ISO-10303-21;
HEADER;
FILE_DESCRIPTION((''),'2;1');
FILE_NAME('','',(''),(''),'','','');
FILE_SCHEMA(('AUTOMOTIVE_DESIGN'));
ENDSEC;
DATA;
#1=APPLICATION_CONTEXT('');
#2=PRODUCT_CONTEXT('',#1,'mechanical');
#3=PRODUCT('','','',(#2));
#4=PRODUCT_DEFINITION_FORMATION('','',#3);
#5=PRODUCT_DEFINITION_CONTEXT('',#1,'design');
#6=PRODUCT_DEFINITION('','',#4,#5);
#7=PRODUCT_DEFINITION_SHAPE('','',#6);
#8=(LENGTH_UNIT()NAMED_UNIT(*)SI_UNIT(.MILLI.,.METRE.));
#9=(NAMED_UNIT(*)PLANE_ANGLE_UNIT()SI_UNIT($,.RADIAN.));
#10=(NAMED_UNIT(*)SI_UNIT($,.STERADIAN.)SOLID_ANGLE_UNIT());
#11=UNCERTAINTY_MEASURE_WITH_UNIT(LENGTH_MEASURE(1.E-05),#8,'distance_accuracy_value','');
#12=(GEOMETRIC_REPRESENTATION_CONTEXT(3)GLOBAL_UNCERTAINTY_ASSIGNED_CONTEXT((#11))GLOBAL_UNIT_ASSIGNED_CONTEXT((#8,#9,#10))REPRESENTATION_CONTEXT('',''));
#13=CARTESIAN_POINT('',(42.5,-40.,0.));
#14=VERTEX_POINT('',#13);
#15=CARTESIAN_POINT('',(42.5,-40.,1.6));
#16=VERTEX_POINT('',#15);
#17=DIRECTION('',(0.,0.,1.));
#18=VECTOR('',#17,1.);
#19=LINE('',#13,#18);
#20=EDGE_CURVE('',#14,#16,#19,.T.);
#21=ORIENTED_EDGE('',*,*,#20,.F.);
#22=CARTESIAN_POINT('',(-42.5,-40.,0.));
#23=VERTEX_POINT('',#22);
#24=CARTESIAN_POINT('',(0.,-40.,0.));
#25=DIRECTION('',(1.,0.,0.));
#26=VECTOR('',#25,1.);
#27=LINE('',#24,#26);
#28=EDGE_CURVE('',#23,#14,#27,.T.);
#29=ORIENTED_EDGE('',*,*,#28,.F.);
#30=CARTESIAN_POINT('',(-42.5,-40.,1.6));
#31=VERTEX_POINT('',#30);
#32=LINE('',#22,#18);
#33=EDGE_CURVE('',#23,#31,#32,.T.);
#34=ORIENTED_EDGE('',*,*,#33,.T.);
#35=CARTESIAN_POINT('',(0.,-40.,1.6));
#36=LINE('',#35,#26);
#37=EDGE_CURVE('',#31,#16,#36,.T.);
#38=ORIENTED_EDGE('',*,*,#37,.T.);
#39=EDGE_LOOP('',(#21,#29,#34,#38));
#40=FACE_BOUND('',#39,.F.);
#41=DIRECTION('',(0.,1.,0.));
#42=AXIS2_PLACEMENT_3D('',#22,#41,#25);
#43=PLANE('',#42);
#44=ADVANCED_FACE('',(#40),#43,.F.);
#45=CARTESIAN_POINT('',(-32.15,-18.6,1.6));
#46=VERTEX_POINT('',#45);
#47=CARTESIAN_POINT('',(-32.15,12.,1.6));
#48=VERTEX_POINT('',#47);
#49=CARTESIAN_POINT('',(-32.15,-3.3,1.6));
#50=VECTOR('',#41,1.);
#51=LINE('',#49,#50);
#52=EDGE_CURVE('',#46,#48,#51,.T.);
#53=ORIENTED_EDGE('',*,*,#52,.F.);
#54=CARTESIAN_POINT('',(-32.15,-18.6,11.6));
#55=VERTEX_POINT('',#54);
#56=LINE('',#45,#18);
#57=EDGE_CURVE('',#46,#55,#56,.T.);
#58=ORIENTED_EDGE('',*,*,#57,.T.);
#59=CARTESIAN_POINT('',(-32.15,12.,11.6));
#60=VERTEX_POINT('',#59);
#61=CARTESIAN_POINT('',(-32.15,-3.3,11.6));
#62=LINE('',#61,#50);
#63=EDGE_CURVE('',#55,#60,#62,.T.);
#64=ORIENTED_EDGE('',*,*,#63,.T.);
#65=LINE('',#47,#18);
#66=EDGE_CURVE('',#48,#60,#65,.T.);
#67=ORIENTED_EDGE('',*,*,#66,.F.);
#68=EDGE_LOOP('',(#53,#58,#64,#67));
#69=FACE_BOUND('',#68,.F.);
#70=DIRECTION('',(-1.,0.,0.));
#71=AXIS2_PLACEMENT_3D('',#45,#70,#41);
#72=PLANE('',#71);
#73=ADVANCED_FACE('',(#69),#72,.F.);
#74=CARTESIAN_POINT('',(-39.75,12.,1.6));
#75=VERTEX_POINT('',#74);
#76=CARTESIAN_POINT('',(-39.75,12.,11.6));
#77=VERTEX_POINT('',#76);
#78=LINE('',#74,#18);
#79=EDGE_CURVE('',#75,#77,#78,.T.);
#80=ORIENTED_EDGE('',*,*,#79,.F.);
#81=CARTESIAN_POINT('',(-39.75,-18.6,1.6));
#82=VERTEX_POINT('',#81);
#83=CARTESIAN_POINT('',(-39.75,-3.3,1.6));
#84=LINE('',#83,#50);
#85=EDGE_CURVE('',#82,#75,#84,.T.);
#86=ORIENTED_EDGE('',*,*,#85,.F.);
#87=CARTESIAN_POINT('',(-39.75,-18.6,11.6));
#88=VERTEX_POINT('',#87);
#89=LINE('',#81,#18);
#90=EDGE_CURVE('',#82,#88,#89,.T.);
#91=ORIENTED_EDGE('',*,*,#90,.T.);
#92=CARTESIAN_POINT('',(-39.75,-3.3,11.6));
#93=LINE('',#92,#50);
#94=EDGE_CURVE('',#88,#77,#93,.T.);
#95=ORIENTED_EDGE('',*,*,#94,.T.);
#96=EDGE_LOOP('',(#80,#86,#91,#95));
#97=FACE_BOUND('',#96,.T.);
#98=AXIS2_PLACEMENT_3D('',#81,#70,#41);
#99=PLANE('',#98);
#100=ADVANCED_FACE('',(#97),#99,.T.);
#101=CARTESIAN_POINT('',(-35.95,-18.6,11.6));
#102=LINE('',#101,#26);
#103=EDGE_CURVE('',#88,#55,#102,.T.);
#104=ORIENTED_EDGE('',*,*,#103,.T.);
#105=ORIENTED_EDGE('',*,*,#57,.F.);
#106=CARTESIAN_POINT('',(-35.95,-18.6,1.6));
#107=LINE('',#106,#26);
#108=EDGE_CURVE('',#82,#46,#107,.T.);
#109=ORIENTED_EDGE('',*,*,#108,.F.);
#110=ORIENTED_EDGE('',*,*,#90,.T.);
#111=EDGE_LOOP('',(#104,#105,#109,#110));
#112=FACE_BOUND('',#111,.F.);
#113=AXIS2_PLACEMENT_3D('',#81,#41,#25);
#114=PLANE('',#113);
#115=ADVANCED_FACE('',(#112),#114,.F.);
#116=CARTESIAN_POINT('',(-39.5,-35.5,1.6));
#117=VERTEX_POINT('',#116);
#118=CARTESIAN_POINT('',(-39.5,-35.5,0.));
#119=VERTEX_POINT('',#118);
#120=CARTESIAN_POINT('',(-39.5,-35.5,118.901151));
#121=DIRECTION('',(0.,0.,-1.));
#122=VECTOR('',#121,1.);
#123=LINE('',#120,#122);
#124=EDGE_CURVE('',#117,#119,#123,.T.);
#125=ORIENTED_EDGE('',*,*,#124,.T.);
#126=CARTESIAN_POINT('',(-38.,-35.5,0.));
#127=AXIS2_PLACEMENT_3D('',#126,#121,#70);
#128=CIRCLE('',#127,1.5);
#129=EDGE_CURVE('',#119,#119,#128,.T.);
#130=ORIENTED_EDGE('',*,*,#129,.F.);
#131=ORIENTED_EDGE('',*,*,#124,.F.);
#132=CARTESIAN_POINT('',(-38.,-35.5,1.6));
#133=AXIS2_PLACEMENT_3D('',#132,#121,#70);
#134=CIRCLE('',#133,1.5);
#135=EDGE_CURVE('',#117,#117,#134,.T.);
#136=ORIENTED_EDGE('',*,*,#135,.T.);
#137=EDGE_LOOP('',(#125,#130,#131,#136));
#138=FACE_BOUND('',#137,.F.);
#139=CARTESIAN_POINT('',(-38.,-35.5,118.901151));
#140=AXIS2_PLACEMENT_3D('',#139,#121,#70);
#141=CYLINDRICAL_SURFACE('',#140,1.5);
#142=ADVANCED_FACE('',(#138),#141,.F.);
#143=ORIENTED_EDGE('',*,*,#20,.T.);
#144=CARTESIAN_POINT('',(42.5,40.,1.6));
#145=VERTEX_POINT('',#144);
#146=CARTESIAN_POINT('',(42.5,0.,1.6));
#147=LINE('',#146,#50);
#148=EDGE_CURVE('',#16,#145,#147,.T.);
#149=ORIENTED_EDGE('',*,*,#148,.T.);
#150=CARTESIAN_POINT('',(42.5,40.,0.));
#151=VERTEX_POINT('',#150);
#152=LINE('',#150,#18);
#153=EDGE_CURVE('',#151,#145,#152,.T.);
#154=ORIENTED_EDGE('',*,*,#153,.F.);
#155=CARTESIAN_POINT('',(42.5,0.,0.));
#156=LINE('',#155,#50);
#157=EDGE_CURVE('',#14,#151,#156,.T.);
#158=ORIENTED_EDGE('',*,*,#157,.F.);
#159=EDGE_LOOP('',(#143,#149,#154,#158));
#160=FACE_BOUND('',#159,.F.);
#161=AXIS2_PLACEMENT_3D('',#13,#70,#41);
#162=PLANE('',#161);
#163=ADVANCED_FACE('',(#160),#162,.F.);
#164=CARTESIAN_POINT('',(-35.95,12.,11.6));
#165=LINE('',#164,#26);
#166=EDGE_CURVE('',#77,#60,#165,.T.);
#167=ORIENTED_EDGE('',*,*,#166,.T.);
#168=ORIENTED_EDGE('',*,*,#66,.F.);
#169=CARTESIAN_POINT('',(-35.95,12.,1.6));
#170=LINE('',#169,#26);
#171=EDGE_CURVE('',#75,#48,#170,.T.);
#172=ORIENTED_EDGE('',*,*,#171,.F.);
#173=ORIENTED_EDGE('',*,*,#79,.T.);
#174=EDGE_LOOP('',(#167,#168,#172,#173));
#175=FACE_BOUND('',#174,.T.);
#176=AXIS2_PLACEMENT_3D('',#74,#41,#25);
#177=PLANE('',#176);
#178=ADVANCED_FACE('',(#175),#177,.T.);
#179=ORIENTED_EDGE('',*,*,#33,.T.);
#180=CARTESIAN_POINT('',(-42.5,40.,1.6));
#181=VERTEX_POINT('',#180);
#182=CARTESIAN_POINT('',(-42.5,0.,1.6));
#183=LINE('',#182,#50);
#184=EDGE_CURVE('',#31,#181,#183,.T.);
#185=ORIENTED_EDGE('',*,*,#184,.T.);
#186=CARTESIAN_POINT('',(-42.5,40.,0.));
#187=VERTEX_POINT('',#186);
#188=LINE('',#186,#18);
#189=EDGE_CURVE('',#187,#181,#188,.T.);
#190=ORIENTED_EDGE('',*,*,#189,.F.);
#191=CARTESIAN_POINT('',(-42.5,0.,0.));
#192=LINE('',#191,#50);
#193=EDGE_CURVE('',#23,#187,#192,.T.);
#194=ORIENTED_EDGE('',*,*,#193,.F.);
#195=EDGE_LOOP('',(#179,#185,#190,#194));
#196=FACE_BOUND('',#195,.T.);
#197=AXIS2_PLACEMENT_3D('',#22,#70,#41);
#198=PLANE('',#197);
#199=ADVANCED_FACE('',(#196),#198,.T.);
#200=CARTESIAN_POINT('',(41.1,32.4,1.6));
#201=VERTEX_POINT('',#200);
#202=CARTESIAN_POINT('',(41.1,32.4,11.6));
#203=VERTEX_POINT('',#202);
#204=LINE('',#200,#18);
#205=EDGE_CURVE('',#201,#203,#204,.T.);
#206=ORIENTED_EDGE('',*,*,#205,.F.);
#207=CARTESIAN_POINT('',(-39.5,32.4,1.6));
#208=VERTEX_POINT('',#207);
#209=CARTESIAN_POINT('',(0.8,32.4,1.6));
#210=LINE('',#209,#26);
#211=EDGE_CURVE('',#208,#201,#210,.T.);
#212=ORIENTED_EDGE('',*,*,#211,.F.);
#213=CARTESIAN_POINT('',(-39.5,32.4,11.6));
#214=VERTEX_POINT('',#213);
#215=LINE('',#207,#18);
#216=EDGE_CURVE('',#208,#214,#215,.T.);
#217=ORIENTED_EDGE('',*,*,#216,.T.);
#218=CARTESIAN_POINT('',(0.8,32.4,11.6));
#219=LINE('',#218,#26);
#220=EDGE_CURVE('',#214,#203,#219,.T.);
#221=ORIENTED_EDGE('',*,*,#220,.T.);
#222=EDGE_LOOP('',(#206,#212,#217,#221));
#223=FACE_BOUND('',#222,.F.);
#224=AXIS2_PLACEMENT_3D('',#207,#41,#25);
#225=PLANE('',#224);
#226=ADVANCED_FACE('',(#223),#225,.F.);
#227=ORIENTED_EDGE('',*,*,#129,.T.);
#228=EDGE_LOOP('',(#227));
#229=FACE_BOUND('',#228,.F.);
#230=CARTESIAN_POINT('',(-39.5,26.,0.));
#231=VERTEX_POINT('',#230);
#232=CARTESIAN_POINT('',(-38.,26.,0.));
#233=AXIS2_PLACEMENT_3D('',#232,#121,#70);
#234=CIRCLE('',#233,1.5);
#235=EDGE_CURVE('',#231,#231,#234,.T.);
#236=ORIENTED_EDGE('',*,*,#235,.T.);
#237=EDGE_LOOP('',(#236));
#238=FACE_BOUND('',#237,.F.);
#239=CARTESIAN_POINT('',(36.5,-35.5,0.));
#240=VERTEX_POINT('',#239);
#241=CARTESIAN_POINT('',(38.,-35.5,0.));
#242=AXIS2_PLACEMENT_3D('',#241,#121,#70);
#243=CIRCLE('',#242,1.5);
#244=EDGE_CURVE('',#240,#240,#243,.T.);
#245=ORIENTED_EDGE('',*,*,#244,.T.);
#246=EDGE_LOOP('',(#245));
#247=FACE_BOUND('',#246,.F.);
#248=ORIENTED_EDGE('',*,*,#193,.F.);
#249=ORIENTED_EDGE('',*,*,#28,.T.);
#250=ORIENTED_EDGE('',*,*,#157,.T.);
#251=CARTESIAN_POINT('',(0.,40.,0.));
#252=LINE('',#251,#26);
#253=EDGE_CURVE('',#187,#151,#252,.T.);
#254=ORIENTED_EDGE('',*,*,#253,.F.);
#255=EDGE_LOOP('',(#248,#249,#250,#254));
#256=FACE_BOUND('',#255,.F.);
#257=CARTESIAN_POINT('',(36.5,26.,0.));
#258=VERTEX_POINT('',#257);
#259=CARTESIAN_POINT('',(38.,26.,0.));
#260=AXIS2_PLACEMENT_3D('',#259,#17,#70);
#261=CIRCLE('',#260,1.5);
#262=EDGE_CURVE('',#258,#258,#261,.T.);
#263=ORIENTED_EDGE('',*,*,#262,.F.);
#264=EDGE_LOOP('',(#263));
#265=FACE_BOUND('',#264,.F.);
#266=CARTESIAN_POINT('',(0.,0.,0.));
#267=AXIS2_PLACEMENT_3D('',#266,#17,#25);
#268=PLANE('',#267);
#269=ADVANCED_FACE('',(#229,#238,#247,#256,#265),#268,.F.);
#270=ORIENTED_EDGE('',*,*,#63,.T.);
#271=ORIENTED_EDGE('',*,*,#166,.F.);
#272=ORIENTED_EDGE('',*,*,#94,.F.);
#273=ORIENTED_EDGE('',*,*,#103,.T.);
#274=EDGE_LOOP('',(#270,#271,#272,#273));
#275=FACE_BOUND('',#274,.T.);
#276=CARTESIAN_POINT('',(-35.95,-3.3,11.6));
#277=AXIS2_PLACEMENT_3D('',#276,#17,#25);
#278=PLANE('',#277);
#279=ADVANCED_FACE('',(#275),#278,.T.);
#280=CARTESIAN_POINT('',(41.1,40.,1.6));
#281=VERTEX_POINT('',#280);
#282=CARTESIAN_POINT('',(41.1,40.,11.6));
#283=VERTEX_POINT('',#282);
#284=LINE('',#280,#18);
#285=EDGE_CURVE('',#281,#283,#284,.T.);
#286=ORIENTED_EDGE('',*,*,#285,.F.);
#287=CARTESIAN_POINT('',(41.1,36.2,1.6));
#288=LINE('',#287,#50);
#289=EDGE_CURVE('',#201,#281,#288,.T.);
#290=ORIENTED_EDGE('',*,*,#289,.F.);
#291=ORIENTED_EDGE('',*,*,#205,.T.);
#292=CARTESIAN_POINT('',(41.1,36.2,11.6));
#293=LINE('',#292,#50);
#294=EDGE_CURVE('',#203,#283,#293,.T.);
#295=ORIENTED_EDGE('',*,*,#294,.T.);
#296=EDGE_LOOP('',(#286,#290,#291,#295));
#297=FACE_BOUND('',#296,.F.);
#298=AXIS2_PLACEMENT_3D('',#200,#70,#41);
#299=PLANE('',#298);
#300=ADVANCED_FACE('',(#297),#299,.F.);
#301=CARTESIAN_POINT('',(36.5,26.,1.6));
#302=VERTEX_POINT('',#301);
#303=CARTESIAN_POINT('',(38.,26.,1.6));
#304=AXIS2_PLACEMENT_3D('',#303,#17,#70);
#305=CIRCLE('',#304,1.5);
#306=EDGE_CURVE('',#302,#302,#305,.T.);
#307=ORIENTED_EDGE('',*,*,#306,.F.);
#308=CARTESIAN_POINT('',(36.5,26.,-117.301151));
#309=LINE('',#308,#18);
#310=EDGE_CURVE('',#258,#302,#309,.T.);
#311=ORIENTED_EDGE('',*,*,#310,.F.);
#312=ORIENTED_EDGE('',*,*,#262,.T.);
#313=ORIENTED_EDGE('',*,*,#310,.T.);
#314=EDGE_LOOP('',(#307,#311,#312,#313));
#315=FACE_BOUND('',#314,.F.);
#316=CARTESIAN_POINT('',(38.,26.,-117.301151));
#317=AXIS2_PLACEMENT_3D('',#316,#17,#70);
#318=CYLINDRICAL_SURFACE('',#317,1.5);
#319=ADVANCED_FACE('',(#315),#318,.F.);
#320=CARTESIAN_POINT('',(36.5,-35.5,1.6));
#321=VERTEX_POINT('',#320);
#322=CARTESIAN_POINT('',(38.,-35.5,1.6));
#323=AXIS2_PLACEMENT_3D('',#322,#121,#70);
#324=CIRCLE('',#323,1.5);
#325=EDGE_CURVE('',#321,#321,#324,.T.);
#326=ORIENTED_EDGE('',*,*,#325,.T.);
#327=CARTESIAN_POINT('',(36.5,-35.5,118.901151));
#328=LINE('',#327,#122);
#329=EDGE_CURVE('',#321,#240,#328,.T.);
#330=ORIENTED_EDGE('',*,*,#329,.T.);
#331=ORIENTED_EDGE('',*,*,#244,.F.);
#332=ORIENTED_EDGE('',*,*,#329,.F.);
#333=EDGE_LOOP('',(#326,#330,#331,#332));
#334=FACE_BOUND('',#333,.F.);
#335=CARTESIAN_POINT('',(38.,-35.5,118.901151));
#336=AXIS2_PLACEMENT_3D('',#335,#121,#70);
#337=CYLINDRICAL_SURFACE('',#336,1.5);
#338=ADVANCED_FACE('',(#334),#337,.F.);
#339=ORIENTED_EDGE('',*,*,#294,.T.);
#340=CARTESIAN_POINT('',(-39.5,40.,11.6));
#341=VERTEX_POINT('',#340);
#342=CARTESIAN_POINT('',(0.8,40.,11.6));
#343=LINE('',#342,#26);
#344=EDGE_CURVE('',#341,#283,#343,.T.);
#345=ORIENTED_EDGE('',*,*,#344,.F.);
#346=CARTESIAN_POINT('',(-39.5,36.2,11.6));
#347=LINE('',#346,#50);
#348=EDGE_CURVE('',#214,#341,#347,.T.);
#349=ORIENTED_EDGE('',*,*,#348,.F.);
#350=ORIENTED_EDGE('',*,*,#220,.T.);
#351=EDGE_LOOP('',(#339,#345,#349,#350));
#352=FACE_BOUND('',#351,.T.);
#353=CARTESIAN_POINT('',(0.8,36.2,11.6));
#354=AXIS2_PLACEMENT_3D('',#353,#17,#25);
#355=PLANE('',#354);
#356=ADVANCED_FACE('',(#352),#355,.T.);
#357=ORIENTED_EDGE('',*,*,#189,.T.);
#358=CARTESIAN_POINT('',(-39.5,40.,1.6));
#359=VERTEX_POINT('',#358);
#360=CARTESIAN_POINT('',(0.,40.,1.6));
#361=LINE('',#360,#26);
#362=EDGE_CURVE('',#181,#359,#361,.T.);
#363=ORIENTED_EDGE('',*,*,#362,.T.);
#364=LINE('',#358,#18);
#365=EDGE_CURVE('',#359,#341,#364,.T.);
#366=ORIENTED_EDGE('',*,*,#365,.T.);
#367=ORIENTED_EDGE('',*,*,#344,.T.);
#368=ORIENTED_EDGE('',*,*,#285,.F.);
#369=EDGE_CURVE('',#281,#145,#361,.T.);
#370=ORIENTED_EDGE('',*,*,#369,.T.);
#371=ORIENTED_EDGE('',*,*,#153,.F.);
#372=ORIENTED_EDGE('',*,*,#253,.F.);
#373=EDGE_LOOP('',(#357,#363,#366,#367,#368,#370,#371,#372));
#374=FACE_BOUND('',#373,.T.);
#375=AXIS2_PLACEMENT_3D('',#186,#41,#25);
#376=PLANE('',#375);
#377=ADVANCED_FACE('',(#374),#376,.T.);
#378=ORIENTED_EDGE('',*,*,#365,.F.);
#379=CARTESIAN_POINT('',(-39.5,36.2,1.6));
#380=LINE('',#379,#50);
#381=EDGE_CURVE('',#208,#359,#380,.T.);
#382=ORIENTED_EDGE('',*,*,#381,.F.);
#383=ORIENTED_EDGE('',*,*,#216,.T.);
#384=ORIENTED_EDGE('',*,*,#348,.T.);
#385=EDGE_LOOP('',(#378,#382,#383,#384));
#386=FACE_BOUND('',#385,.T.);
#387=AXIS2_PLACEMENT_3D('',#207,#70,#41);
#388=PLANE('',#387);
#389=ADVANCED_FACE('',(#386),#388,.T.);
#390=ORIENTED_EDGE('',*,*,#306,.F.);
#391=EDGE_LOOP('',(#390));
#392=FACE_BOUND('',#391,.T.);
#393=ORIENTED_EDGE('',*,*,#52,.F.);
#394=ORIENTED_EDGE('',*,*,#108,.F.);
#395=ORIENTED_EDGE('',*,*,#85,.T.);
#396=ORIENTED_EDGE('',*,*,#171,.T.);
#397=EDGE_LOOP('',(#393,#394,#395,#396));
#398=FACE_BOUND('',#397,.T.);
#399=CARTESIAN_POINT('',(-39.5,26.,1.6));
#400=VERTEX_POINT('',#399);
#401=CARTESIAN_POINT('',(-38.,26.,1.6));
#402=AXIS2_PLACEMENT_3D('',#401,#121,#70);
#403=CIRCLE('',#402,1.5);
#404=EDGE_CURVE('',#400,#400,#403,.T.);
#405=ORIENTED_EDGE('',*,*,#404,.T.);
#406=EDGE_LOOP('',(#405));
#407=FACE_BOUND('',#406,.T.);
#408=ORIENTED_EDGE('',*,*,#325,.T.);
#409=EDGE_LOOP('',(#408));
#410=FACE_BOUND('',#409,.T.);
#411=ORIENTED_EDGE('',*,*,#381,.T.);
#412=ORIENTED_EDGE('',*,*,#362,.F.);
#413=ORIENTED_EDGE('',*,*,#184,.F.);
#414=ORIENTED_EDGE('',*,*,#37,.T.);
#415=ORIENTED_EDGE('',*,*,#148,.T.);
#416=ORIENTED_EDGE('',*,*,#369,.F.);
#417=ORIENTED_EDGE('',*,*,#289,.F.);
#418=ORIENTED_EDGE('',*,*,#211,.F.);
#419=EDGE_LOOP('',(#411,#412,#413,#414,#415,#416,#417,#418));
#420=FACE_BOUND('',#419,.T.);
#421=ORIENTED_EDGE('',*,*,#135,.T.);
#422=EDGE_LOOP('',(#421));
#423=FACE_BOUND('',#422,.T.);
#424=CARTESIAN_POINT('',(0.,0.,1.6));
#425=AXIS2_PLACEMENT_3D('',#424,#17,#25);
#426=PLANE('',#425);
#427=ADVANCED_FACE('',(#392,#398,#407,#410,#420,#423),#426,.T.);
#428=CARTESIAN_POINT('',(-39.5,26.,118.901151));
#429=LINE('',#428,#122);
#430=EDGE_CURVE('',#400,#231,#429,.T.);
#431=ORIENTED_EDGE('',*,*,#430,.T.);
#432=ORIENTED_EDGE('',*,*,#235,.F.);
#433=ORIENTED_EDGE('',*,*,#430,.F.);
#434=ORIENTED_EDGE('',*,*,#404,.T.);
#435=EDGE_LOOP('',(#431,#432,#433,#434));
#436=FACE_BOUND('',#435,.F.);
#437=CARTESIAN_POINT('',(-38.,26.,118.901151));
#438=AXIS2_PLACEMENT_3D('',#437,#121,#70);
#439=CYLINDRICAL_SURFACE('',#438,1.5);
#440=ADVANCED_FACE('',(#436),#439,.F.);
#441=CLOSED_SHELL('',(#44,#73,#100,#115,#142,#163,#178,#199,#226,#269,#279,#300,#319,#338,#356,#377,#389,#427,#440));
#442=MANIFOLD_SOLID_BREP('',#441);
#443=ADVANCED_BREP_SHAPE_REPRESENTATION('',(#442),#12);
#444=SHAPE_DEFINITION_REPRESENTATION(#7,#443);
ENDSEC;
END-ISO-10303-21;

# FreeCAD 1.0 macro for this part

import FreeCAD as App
import Part
import Sketcher


def add_polygon(sketch, points):
    """Adds a closed chain of lines whose ends are joined by coincident constraints."""
    first, n = sketch.GeometryCount, len(points)
    for a, b in zip(points, points[1:] + points[:1]):
        sketch.addGeometry(Part.LineSegment(App.Vector(*a, 0), App.Vector(*b, 0)), False)
    for i in range(n):
        sketch.addConstraint(Sketcher.Constraint("Coincident", first + i, 2, first + (i + 1) % n, 1))

doc = App.newDocument("Part")
body = doc.addObject("PartDesign::Body", "Body")

# Sketch on XY plane
sketch1 = body.newObject("Sketcher::SketchObject", "Sketch")
sketch1.AttachmentSupport = (doc.getObject("XY_Plane"), [""])
sketch1.MapMode = "FlatFace"
add_polygon(sketch1, [(-42, 40), (-42, -40), (42, -40), (42, 40)])  # lines 0-3
sketch1.addConstraint(Sketcher.Constraint("Vertical", 0))
sketch1.addConstraint(Sketcher.Constraint("Horizontal", 1))
sketch1.addConstraint(Sketcher.Constraint("Vertical", 2))
sketch1.addConstraint(Sketcher.Constraint("Horizontal", 3))
sketch1.addConstraint(Sketcher.Constraint("Symmetric", 0, 2, 2, 2, -1, 1))
sketch1.addConstraint(Sketcher.Constraint("DistanceX", 1, 1, 1, 2, 85.0))
sketch1.addConstraint(Sketcher.Constraint("DistanceY", 0, 2, 0, 1, 80.0))
pad1 = body.newObject("PartDesign::Pad", "Pad")
pad1.Profile = sketch1
pad1.Length = 1.6

# Sketch on XY plane
sketch2 = body.newObject("Sketcher::SketchObject", "Sketch001")
sketch2.AttachmentSupport = (doc.getObject("XY_Plane"), [""])
sketch2.MapMode = "FlatFace"
sketch2.AttachmentOffset = App.Placement(App.Vector(0, 0, 1.6), App.Rotation())
add_polygon(sketch2, [(-40, 12), (-40, -19), (-32, -19), (-32, 12)])  # lines 0-3
sketch2.addConstraint(Sketcher.Constraint("Vertical", 0))
sketch2.addConstraint(Sketcher.Constraint("Horizontal", 1))
sketch2.addConstraint(Sketcher.Constraint("Vertical", 2))
sketch2.addConstraint(Sketcher.Constraint("Horizontal", 3))
sketch2.addConstraint(Sketcher.Constraint("DistanceX", 1, 1, 1, 2, 7.6))
sketch2.addConstraint(Sketcher.Constraint("DistanceY", 0, 2, 0, 1, 30.6))
sketch2.addConstraint(Sketcher.Constraint("DistanceY", -1, 1, 2, 2, 12.0))
sketch2.addConstraint(Sketcher.Constraint("DistanceX", 0, 2, -1, 1, 39.75))
pad2 = body.newObject("PartDesign::Pad", "Pad001")
pad2.Profile = sketch2
pad2.Length = 10

# Sketch on XY plane
sketch3 = body.newObject("Sketcher::SketchObject", "Sketch002")
sketch3.AttachmentSupport = (doc.getObject("XY_Plane"), [""])
sketch3.MapMode = "FlatFace"
sketch3.AttachmentOffset = App.Placement(App.Vector(0, 0, 1.6), App.Rotation())
sketch3.addGeometry(Part.Circle(App.Vector(-38, 26, 0), App.Vector(0, 0, 1), 1.5), False)
sketch3.addConstraint(Sketcher.Constraint("Diameter", 0, 3.0))
sketch3.addConstraint(Sketcher.Constraint("DistanceX", 0, 3, -1, 1, 38.0))
sketch3.addConstraint(Sketcher.Constraint("DistanceY", -1, 1, 0, 3, 26.0))
doc.recompute()
hole = body.newObject("PartDesign::Hole", "Hole")
hole.Profile = sketch3
hole.ThreadType = "None"
hole.Diameter = 3
hole.DepthType = "ThroughAll"

# Sketch on XY plane
sketch4 = body.newObject("Sketcher::SketchObject", "Sketch003")
sketch4.AttachmentSupport = (doc.getObject("XY_Plane"), [""])
sketch4.MapMode = "FlatFace"
sketch4.addGeometry(Part.Circle(App.Vector(38, 26, 0), App.Vector(0, 0, 1), 1.5), False)
sketch4.addConstraint(Sketcher.Constraint("Diameter", 0, 3.0))
sketch4.addConstraint(Sketcher.Constraint("DistanceX", -1, 1, 0, 3, 38.0))
sketch4.addConstraint(Sketcher.Constraint("DistanceY", -1, 1, 0, 3, 26.0))
doc.recompute()
hole2 = body.newObject("PartDesign::Hole", "Hole001")
hole2.Profile = sketch4
hole2.ThreadType = "None"
hole2.Diameter = 3
hole2.DepthType = "ThroughAll"
hole2.Reversed = True

# Sketch on XY plane
sketch5 = body.newObject("Sketcher::SketchObject", "Sketch004")
sketch5.AttachmentSupport = (doc.getObject("XY_Plane"), [""])
sketch5.MapMode = "FlatFace"
sketch5.AttachmentOffset = App.Placement(App.Vector(0, 0, 1.6), App.Rotation())
sketch5.addGeometry(Part.Circle(App.Vector(38, -35.5, 0), App.Vector(0, 0, 1), 1.5), False)
sketch5.addConstraint(Sketcher.Constraint("Diameter", 0, 3.0))
sketch5.addConstraint(Sketcher.Constraint("DistanceX", -1, 1, 0, 3, 38.0))
sketch5.addConstraint(Sketcher.Constraint("DistanceY", 0, 3, -1, 1, 35.5))
doc.recompute()
hole3 = body.newObject("PartDesign::Hole", "Hole002")
hole3.Profile = sketch5
hole3.ThreadType = "None"
hole3.Diameter = 3
hole3.DepthType = "ThroughAll"

# Sketch on XY plane
sketch6 = body.newObject("Sketcher::SketchObject", "Sketch005")
sketch6.AttachmentSupport = (doc.getObject("XY_Plane"), [""])
sketch6.MapMode = "FlatFace"
sketch6.AttachmentOffset = App.Placement(App.Vector(0, 0, 1.6), App.Rotation())
sketch6.addGeometry(Part.Circle(App.Vector(-38, -35.5, 0), App.Vector(0, 0, 1), 1.5), False)
sketch6.addConstraint(Sketcher.Constraint("Diameter", 0, 3.0))
sketch6.addConstraint(Sketcher.Constraint("DistanceX", 0, 3, -1, 1, 38.0))
sketch6.addConstraint(Sketcher.Constraint("DistanceY", 0, 3, -1, 1, 35.5))
doc.recompute()
hole4 = body.newObject("PartDesign::Hole", "Hole003")
hole4.Profile = sketch6
hole4.ThreadType = "None"
hole4.Diameter = 3
hole4.DepthType = "ThroughAll"
body2 = doc.addObject("PartDesign::Body", "Body001")
doc.recompute()

body2.BaseFeature = body
doc.recompute()

# Sketch on XY plane
sketch7 = body.newObject("Sketcher::SketchObject", "Sketch006")
sketch7.AttachmentSupport = (doc.getObject("XY_Plane"), [""])
sketch7.MapMode = "FlatFace"
sketch7.AttachmentOffset = App.Placement(App.Vector(0, 0, 1.6), App.Rotation())
add_polygon(sketch7, [(-40, 40), (-40, 32), (41, 32), (41, 40)])  # lines 0-3
sketch7.addConstraint(Sketcher.Constraint("Vertical", 0))
sketch7.addConstraint(Sketcher.Constraint("Horizontal", 1))
sketch7.addConstraint(Sketcher.Constraint("Vertical", 2))
sketch7.addConstraint(Sketcher.Constraint("Horizontal", 3))
sketch7.addConstraint(Sketcher.Constraint("DistanceX", 1, 1, 1, 2, 80.6))
sketch7.addConstraint(Sketcher.Constraint("DistanceY", 0, 2, 0, 1, 7.6))
sketch7.addConstraint(Sketcher.Constraint("DistanceY", -1, 1, 2, 2, 40.0))
sketch7.addConstraint(Sketcher.Constraint("DistanceX", 0, 2, -1, 1, 39.5))
pad3 = body.newObject("PartDesign::Pad", "Pad002")
pad3.Profile = sketch7
pad3.Length = 10
body.Visibility = False

doc.recompute()
